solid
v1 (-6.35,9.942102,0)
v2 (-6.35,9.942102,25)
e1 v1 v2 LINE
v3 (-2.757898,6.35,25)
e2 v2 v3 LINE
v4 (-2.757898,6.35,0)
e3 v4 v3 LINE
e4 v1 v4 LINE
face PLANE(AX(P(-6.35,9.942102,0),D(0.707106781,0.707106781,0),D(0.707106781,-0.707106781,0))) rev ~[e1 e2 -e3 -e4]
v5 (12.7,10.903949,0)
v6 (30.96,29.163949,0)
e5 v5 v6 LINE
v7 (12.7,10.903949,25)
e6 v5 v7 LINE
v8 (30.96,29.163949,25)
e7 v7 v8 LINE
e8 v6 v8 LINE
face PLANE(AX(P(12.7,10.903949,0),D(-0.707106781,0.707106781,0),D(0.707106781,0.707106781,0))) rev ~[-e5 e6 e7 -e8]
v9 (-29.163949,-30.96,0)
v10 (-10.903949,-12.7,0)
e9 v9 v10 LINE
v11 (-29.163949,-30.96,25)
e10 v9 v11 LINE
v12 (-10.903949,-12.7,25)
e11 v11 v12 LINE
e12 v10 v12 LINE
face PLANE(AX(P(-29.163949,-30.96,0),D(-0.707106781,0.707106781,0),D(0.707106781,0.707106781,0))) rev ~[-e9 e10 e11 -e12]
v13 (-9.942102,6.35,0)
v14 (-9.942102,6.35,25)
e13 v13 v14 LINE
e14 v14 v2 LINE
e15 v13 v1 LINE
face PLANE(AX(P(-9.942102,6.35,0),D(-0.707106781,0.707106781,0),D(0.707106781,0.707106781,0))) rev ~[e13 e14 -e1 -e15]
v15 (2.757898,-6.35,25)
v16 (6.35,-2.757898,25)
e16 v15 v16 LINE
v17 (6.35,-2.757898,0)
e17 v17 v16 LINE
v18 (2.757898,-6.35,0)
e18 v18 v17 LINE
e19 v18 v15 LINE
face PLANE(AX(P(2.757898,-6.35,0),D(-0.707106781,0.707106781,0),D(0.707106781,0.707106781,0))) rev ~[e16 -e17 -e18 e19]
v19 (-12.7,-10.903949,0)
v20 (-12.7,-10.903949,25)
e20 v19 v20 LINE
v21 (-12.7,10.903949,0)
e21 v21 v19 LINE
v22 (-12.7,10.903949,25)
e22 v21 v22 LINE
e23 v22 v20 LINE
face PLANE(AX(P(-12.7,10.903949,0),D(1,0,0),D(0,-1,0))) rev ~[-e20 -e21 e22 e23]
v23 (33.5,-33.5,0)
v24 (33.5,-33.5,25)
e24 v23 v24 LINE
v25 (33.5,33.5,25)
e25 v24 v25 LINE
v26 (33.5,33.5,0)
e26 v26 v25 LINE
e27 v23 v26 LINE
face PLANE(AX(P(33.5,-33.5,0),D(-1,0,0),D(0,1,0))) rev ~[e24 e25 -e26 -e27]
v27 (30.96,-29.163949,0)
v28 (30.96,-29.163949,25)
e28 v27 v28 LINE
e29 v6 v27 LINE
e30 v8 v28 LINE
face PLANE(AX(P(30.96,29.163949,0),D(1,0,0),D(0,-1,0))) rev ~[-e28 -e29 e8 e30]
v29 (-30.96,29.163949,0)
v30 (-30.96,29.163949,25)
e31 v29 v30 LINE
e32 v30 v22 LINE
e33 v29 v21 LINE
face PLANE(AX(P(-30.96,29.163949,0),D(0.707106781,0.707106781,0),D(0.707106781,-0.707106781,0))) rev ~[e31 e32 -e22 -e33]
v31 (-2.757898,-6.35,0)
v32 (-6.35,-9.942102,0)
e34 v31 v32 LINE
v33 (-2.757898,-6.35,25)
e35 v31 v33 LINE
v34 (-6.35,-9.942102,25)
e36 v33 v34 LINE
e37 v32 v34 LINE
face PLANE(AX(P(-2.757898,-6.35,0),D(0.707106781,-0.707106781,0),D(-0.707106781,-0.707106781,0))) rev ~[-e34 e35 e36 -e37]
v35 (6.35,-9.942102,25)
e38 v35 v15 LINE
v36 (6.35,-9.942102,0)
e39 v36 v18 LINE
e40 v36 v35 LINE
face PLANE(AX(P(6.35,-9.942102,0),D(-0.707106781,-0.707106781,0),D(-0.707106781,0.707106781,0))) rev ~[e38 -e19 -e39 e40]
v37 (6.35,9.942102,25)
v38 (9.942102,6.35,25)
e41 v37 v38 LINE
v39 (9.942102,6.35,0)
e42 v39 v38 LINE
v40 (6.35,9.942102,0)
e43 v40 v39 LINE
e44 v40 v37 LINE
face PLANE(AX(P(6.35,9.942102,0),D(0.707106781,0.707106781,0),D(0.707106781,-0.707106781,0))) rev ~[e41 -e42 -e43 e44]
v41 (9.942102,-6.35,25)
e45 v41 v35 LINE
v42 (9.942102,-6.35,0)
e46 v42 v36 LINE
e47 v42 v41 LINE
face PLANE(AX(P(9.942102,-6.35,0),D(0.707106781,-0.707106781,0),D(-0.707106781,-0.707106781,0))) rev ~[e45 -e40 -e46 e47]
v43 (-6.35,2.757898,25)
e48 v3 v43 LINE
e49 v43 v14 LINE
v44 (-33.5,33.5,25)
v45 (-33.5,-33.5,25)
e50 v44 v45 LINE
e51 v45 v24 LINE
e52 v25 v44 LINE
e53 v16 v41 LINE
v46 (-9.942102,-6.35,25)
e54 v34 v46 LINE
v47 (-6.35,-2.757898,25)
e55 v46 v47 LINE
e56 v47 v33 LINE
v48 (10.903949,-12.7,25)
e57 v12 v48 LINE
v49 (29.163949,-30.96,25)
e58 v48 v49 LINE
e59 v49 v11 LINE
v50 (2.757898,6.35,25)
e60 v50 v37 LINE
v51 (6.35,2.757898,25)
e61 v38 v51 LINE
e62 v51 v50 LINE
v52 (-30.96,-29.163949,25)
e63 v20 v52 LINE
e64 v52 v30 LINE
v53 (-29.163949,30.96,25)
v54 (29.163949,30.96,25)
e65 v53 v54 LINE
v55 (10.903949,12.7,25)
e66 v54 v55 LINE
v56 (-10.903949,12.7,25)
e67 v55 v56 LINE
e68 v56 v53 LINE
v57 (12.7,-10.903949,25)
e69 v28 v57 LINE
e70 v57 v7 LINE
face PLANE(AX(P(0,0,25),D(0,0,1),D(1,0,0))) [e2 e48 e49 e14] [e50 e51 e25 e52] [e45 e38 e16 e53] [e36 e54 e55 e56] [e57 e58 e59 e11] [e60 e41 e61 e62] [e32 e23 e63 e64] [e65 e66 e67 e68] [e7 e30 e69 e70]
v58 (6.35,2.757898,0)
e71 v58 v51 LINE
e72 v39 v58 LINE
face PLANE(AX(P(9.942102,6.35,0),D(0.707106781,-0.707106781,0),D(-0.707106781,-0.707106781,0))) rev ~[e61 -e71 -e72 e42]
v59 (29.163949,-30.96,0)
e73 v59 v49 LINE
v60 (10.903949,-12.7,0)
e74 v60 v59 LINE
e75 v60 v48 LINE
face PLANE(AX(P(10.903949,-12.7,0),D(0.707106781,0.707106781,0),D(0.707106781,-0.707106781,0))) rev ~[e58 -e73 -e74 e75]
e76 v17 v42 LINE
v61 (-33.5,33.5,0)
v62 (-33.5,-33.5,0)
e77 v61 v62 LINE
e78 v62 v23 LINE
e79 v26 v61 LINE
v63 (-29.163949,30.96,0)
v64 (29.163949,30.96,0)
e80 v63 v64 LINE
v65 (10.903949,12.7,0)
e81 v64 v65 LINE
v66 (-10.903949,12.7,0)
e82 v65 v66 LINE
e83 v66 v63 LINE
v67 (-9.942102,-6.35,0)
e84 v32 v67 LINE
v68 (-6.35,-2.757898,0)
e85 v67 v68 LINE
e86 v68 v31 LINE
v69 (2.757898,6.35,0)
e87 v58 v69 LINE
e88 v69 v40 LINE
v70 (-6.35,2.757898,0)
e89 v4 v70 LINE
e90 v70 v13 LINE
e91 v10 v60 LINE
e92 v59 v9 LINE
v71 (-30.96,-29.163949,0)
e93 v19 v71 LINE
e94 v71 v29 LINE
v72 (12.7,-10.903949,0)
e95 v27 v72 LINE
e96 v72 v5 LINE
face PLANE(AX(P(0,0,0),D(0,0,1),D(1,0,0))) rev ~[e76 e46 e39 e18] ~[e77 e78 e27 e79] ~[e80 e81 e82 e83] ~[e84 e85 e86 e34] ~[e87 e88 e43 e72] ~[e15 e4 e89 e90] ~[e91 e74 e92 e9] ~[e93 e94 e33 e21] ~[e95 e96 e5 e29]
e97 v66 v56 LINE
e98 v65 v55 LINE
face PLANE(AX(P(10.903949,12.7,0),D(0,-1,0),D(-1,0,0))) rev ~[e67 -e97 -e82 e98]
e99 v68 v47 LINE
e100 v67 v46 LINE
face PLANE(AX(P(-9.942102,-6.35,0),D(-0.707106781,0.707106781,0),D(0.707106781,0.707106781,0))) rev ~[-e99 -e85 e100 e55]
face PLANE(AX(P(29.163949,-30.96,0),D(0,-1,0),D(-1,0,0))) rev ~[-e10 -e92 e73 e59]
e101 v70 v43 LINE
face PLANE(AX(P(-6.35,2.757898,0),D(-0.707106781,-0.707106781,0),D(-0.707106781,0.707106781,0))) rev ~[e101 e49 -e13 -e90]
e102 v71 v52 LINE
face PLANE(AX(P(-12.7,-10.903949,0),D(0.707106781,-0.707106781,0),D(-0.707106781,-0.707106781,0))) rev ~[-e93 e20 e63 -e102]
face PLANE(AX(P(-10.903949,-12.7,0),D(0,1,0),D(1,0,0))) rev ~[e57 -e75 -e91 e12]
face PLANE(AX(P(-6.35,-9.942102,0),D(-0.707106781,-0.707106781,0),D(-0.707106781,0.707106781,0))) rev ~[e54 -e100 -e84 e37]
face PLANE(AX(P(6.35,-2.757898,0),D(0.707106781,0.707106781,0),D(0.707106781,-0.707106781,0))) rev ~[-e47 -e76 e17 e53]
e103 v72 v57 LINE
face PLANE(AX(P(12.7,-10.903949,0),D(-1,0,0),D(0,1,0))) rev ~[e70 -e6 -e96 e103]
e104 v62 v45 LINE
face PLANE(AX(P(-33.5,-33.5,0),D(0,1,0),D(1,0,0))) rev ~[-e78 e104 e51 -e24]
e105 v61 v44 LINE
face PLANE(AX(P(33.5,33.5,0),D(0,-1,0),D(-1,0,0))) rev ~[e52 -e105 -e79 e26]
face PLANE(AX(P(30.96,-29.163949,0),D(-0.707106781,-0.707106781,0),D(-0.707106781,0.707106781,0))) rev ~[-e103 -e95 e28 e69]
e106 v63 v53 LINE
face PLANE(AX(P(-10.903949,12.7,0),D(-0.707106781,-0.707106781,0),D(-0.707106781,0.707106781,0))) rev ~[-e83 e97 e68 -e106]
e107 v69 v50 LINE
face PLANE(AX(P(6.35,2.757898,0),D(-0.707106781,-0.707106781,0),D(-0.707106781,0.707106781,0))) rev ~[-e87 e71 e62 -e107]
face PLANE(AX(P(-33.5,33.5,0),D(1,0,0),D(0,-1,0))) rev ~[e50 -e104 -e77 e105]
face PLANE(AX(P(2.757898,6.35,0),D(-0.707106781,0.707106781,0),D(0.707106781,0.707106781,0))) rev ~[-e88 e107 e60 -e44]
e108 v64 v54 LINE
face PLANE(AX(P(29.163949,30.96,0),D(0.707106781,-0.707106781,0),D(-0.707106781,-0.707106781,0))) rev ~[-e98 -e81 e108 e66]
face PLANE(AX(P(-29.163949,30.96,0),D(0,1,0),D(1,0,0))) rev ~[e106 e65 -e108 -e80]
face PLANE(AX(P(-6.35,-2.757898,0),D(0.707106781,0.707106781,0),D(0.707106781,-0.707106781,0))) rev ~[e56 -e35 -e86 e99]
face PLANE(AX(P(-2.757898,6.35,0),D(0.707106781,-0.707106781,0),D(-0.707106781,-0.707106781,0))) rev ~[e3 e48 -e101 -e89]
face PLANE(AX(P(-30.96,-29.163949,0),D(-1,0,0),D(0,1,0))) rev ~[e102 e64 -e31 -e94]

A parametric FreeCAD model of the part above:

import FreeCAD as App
import Part
import Sketcher


def add_polygon(sketch, points):
    """Adds a closed chain of lines whose ends are joined by coincident constraints."""
    first, n = sketch.GeometryCount, len(points)
    for a, b in zip(points, points[1:] + points[:1]):
        sketch.addGeometry(Part.LineSegment(App.Vector(*a, 0), App.Vector(*b, 0)), False)
    for i in range(n):
        sketch.addConstraint(Sketcher.Constraint("Coincident", first + i, 2, first + (i + 1) % n, 1))

doc = App.newDocument("Part")
params = doc.addObject("Spreadsheet::Sheet", "Params")
for row, (alias, value) in enumerate([
    ("sketch1_width", "67 mm"),
    ("sketch1_length", "5.079999 mm"),
    ("pad1_length", "25 mm"),
], start=1):
    params.set(f"A{row}", alias)
    params.set(f"B{row}", "=" + value)
    params.setAlias(f"B{row}", alias)

body = doc.addObject("PartDesign::Body", "Body")

sketch1 = body.newObject("Sketcher::SketchObject", "Sketch")
sketch1.AttachmentSupport = (doc.getObject("XY_Plane"), [""])
sketch1.MapMode = "FlatFace"
add_polygon(sketch1, [(34, 34), (-34, 34), (-34, -34), (34, -34)])
add_polygon(sketch1, [(11, -13), (29, -31), (-29, -31), (-11, -13)])
add_polygon(sketch1, [(-13, -11), (-31, -29), (-31, 29), (-13, 11)])
add_polygon(sketch1, [(-10, -6), (-6, -3), (-3, -6), (-6, -10)])
add_polygon(sketch1, [(6, -3), (10, -6), (6, -10), (3, -6)])
add_polygon(sketch1, [(31, -29), (13, -11), (13, 11), (31, 29)])
add_polygon(sketch1, [(-3, 6), (-6, 3), (-10, 6), (-6, 10)])
add_polygon(sketch1, [(29, 31), (11, 13), (-11, 13), (-29, 31)])
add_polygon(sketch1, [(6, 3), (3, 6), (6, 10), (10, 6)])
sketch1.addConstraint([
    Sketcher.Constraint("Horizontal", 0),
    Sketcher.Constraint("Vertical", 1),
    Sketcher.Constraint("Horizontal", 2),
    Sketcher.Constraint("Vertical", 3),
    Sketcher.Constraint("Horizontal", 5),
    Sketcher.Constraint("Horizontal", 7),
    Sketcher.Constraint("Vertical", 9),
    Sketcher.Constraint("Vertical", 11),
    Sketcher.Constraint("Vertical", 21),
    Sketcher.Constraint("Vertical", 23),
    Sketcher.Constraint("Horizontal", 29),
    Sketcher.Constraint("Horizontal", 31),
    Sketcher.Constraint("Symmetric", 0, 2, 2, 2, -1, 1),
    Sketcher.Constraint("Symmetric", 10, 2, 20, 2, -1, 1),
    Sketcher.Constraint("Symmetric", 8, 2, 22, 2, -1, 1),
    Sketcher.Constraint("Symmetric", 19, 2, 24, 2, -1, 1),
    Sketcher.Constraint("Symmetric", 16, 2, 25, 2, -1, 1),
    Sketcher.Constraint("Symmetric", 17, 2, 26, 2, -1, 1),
    Sketcher.Constraint("Symmetric", 18, 2, 27, 2, -1, 1),
    Sketcher.Constraint("Symmetric", 6, 2, 28, 2, -1, 1),
    Sketcher.Constraint("Symmetric", 4, 2, 30, 2, -1, 1),
    Sketcher.Constraint("Symmetric", 13, 2, 32, 2, -1, 1),
    Sketcher.Constraint("Symmetric", 14, 2, 33, 2, -1, 1),
    Sketcher.Constraint("Symmetric", 15, 2, 34, 2, -1, 1),
    Sketcher.Constraint("Symmetric", 12, 2, 35, 2, -1, 1),
    Sketcher.Constraint("Symmetric", 15, 2, 16, 2, -2),
    Sketcher.Constraint("Symmetric", 14, 2, 17, 2, -2),
    Sketcher.Constraint("Symmetric", 13, 2, 18, 2, -2),
    Sketcher.Constraint("Symmetric", 12, 2, 19, 2, -2),
    Sketcher.Constraint("Perpendicular", 4, 6),
    Sketcher.Constraint("Parallel", 6, 8),
    Sketcher.Constraint("Perpendicular", 8, 10),
    Sketcher.Constraint("Perpendicular", 10, 12),
    Sketcher.Constraint("Perpendicular", 12, 13),
    Sketcher.Constraint("Perpendicular", 13, 14),
    Sketcher.Constraint("Perpendicular", 14, 15),
    Sketcher.Constraint("Parallel", 15, 16),
    Sketcher.Constraint("Perpendicular", 19, 20),
    Sketcher.Constraint("Perpendicular", 20, 22),
    Sketcher.Constraint("Perpendicular", 27, 28),
    Sketcher.Constraint("Perpendicular", 28, 30),
    Sketcher.Constraint("Horizontal", 13, 2, 15, 2),
    Sketcher.Constraint("Horizontal", 11, 2, 20, 2),
    Sketcher.Constraint("Vertical", 7, 2, 28, 2),
    Sketcher.Constraint("Equal", 2, 1),
    Sketcher.Constraint("Equal", 31, 9),
    Sketcher.Constraint("Equal", 29, 11),
    Sketcher.Constraint("DistanceX", 0, 2, 0, 1, 67.0),
    Sketcher.Constraint("DistanceY", 6, 2, -1, 1, 12.7),
    Sketcher.Constraint("DistanceX", 10, 2, -1, 1, 12.7),
    Sketcher.Constraint("DistanceX", 13, 2, 16, 2, 12.7),
    Sketcher.Constraint("DistanceY", 14, 2, 24, 2, 12.7),
    Sketcher.Constraint("Distance", 12, 5.079999),
    Sketcher.Constraint("DistanceY", 4, 2, -1, 1, 30.96),
    Sketcher.Constraint("DistanceX", 7, 1, 7, 2, 21.807898),
])
sketch1.setExpression("Constraints[83]", "Params.sketch1_width")
sketch1.setExpression("Constraints[88]", "Params.sketch1_length")
pad1 = body.newObject("PartDesign::Pad", "Pad")
pad1.Profile = sketch1
pad1.setExpression("Length", "Params.pad1_length")

doc.recompute()
